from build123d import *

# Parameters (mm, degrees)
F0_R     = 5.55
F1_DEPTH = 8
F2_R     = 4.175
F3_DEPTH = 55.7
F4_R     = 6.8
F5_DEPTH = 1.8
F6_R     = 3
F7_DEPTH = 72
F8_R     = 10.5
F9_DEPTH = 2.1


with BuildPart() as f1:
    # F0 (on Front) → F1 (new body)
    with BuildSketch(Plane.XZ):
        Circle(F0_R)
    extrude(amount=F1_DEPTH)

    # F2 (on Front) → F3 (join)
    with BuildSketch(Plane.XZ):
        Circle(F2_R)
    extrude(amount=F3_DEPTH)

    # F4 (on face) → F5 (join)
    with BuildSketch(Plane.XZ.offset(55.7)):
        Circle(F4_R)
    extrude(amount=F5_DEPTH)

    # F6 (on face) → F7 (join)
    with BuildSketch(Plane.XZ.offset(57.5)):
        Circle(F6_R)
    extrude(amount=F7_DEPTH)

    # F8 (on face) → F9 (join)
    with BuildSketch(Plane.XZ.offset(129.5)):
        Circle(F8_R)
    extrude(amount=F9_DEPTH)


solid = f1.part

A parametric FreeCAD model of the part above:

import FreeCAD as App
import Part
import Sketcher
from FreeCAD import Vector
Q = App.Units.Quantity

doc = App.newDocument("Part")
params = doc.addObject("Spreadsheet::Sheet", "Params")
for row, (alias, value) in enumerate([
    ("sketch1_diameter", "11.1 mm"),
    ("pad1_length", "8 mm"),
    ("sketch2_diameter", "8.35 mm"),
    ("pad2_length", "55.7 mm"),
    ("sketch3_diameter", "13.6 mm"),
    ("pad3_length", "1.8 mm"),
    ("sketch4_diameter", "6 mm"),
    ("pad4_length", "72 mm"),
    ("sketch5_diameter", "21 mm"),
    ("pad5_length", "2.1 mm"),
], start=1):
    params.set(f"A{row}", alias)
    params.set(f"B{row}", "=" + value)
    params.setAlias(f"B{row}", alias)

body = doc.addObject("PartDesign::Body", "Body")

sketch1 = body.newObject("Sketcher::SketchObject", "Sketch")
sketch1.AttachmentSupport = (doc.getObject("XZ_Plane"), [""])
sketch1.MapMode = "FlatFace"
sketch1.addGeometry(Part.Circle(Vector(0, 0, 0), Vector(0, 0, 1), 6), False)
sketch1.addConstraint(Sketcher.Constraint("Coincident", 0, 3, -1, 1))
sketch1.addConstraint(Sketcher.Constraint("Diameter", 0, Q("11.1 mm")))
sketch1.setExpression("Constraints[1]", "Params.sketch1_diameter")
pad1 = body.newObject("PartDesign::Pad", "Pad")
pad1.Profile = sketch1
pad1.setExpression("Length", "Params.pad1_length")

sketch2 = body.newObject("Sketcher::SketchObject", "Sketch001")
sketch2.AttachmentSupport = (doc.getObject("XZ_Plane"), [""])
sketch2.MapMode = "FlatFace"
sketch2.addGeometry(Part.Circle(Vector(0, 0, 0), Vector(0, 0, 1), 4.2), False)
sketch2.addConstraint(Sketcher.Constraint("Coincident", 0, 3, -1, 1))
sketch2.addConstraint(Sketcher.Constraint("Diameter", 0, Q("8.35 mm")))
sketch2.setExpression("Constraints[1]", "Params.sketch2_diameter")
pad2 = body.newObject("PartDesign::Pad", "Pad001")
pad2.Profile = sketch2
pad2.setExpression("Length", "Params.pad2_length")

sketch3 = body.newObject("Sketcher::SketchObject", "Sketch002")
sketch3.AttachmentSupport = (doc.getObject("XZ_Plane"), [""])
sketch3.MapMode = "FlatFace"
sketch3.AttachmentOffset = App.Placement(Vector(0, 0, 55.7), App.Rotation())
sketch3.addGeometry(Part.Circle(Vector(0, 0, 0), Vector(0, 0, 1), 7), False)
sketch3.addConstraint(Sketcher.Constraint("Coincident", 0, 3, -1, 1))
sketch3.addConstraint(Sketcher.Constraint("Diameter", 0, Q("13.6 mm")))
sketch3.setExpression("Constraints[1]", "Params.sketch3_diameter")
pad3 = body.newObject("PartDesign::Pad", "Pad002")
pad3.Profile = sketch3
pad3.setExpression("Length", "Params.pad3_length")

sketch4 = body.newObject("Sketcher::SketchObject", "Sketch003")
sketch4.AttachmentSupport = (doc.getObject("XZ_Plane"), [""])
sketch4.MapMode = "FlatFace"
sketch4.AttachmentOffset = App.Placement(Vector(0, 0, 57.5), App.Rotation())
sketch4.addGeometry(Part.Circle(Vector(0, 0, 0), Vector(0, 0, 1), 3), False)
sketch4.addConstraint(Sketcher.Constraint("Coincident", 0, 3, -1, 1))
sketch4.addConstraint(Sketcher.Constraint("Diameter", 0, Q("6 mm")))
sketch4.setExpression("Constraints[1]", "Params.sketch4_diameter")
pad4 = body.newObject("PartDesign::Pad", "Pad003")
pad4.Profile = sketch4
pad4.setExpression("Length", "Params.pad4_length")

sketch5 = body.newObject("Sketcher::SketchObject", "Sketch004")
sketch5.AttachmentSupport = (doc.getObject("XZ_Plane"), [""])
sketch5.MapMode = "FlatFace"
sketch5.AttachmentOffset = App.Placement(Vector(0, 0, 129.5), App.Rotation())
sketch5.addGeometry(Part.Circle(Vector(0, 0, 0), Vector(0, 0, 1), 10), False)
sketch5.addConstraint(Sketcher.Constraint("Coincident", 0, 3, -1, 1))
sketch5.addConstraint(Sketcher.Constraint("Diameter", 0, Q("21 mm")))
sketch5.setExpression("Constraints[1]", "Params.sketch5_diameter")
pad5 = body.newObject("PartDesign::Pad", "Pad004")
pad5.Profile = sketch5
pad5.setExpression("Length", "Params.pad5_length")

doc.recompute()
